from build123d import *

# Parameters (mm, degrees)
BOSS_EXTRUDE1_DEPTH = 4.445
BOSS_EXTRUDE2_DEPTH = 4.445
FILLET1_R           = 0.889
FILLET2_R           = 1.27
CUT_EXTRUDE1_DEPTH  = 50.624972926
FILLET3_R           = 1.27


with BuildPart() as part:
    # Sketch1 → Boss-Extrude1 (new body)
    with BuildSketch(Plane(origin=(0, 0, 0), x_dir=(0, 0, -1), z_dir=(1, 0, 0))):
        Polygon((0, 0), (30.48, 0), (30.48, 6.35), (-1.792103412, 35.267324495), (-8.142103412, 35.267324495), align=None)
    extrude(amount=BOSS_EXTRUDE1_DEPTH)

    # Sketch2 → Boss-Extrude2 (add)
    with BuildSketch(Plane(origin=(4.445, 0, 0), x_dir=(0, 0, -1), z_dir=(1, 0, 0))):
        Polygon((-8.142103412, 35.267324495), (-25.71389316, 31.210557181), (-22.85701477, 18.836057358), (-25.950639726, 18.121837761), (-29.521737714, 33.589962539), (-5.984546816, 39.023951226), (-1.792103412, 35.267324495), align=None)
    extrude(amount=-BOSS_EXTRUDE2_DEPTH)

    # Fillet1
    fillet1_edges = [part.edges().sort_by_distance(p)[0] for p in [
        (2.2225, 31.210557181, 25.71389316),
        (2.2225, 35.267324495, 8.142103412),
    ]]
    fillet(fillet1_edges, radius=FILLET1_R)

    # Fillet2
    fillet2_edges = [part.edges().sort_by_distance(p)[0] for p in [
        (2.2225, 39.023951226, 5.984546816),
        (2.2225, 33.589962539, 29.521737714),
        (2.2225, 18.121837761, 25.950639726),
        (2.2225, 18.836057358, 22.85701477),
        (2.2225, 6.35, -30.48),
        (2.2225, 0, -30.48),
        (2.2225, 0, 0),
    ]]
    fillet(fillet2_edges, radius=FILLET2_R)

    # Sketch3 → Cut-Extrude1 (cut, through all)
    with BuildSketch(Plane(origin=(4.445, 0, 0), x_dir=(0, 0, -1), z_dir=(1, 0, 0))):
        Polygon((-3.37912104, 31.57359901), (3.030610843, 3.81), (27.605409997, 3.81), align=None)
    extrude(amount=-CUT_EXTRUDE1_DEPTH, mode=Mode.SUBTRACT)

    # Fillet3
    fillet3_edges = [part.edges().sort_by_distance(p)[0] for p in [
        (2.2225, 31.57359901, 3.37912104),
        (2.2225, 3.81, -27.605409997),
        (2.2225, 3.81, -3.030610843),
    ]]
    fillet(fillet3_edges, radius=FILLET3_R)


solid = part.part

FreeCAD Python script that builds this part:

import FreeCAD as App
import Part
import Sketcher
Q = App.Units.Quantity


def edges_at(feature, points):
    """Names of the edges that pass closest to the given points."""
    edges = feature.Shape.Edges
    near = lambda p: min(range(len(edges)), key=lambda i: edges[i].distToShape(Part.Vertex(*p))[0])
    return sorted({f"Edge{near(p) + 1}" for p in points})

doc = App.newDocument("Part")
body = doc.addObject("PartDesign::Body", "Body")

sketch1 = body.newObject("Sketcher::SketchObject", "Sketch")
sketch1.AttachmentSupport = (doc.getObject("YZ_Plane"), [""])
sketch1.MapMode = "FlatFace"
sketch1.addGeometry([
    Part.LineSegment(App.Vector(0, 0, 0), App.Vector(0, -30, 0)),
    Part.LineSegment(App.Vector(0, -30, 0), App.Vector(6, -30, 0)),
    Part.LineSegment(App.Vector(6, -30, 0), App.Vector(35, 2, 0)),
    Part.LineSegment(App.Vector(35, 2, 0), App.Vector(35, 8, 0)),
    Part.LineSegment(App.Vector(35, 8, 0), App.Vector(0, 0, 0)),
], False)
sketch1.addConstraint([
    Sketcher.Constraint("Coincident", 0, 2, 1, 1),
    Sketcher.Constraint("Coincident", 1, 2, 2, 1),
    Sketcher.Constraint("Coincident", 2, 2, 3, 1),
    Sketcher.Constraint("Coincident", 3, 2, 4, 1),
    Sketcher.Constraint("Coincident", 4, 2, 0, 1),
    Sketcher.Constraint("Vertical", 0),
    Sketcher.Constraint("Horizontal", 1),
    Sketcher.Constraint("Vertical", 3),
    Sketcher.Constraint("Coincident", 4, 2, -1, 1),
    Sketcher.Constraint("Equal", 1, 3),
    Sketcher.Constraint("DistanceY", 0, 2, 0, 1, Q("1.2 in")),
    Sketcher.Constraint("Angle", 4, Q("-167 deg")),
    Sketcher.Constraint("DistanceX", 1, 1, 1, 2, Q("0.25 in")),
    Sketcher.Constraint("Distance", 4, Q("1.425 in")),
])
pad1 = body.newObject("PartDesign::Pad", "Pad")
pad1.Profile = sketch1
pad1.Length = Q("0.175 in")

sketch2 = body.newObject("Sketcher::SketchObject", "Sketch001")
sketch2.AttachmentSupport = (doc.getObject("YZ_Plane"), [""])
sketch2.MapMode = "FlatFace"
sketch2.AttachmentOffset = App.Placement(App.Vector(0, 0, 0.175 * 25.4), App.Rotation())
sketch2.addGeometry([
    Part.LineSegment(App.Vector(31.2, 25.7, 0), App.Vector(35.3, 8.1, 0)),
    Part.LineSegment(App.Vector(35.3, 8.1, 0), App.Vector(35.3, 1.8, 0)),
    Part.LineSegment(App.Vector(35.3, 1.8, 0), App.Vector(39, 6, 0)),
    Part.LineSegment(App.Vector(39, 6, 0), App.Vector(33.6, 29.5, 0)),
    Part.LineSegment(App.Vector(33.6, 29.5, 0), App.Vector(18.1, 26, 0)),
    Part.LineSegment(App.Vector(18.1, 26, 0), App.Vector(18.8, 22.9, 0)),
    Part.LineSegment(App.Vector(18.8, 22.9, 0), App.Vector(31.2, 25.7, 0)),
], False)
sketch2.addConstraint([
    Sketcher.Constraint("Coincident", 0, 2, 1, 1),
    Sketcher.Constraint("Coincident", 1, 2, 2, 1),
    Sketcher.Constraint("Coincident", 2, 2, 3, 1),
    Sketcher.Constraint("Coincident", 3, 2, 4, 1),
    Sketcher.Constraint("Coincident", 4, 2, 5, 1),
    Sketcher.Constraint("Coincident", 5, 2, 6, 1),
    Sketcher.Constraint("Coincident", 6, 2, 0, 1),
    Sketcher.Constraint("Vertical", 1),
    Sketcher.Constraint("Parallel", 0, 3),
    Sketcher.Constraint("Perpendicular", 3, 4),
    Sketcher.Constraint("Perpendicular", 4, 5),
    Sketcher.Constraint("Perpendicular", 5, 6),
    Sketcher.Constraint("Angle", 0, Q("-77 deg")),
    Sketcher.Constraint("Distance", 6, Q("0.5 in")),
    Sketcher.Constraint("DistanceY", 1, 2, 1, 1, Q("0.25 in")),
    Sketcher.Constraint("Distance", 0, Q("0.71 in")),
    Sketcher.Constraint("Distance", 4, Q("0.625 in")),
    Sketcher.Constraint("Distance", 5, Q("0.125 in")),
    Sketcher.Constraint("DistanceX", -1, 1, 2, 2, 39.023951),
    Sketcher.Constraint("DistanceY", -1, 1, 4, 2, 25.95064),
    Sketcher.Constraint("DistanceX", 3, 2, 2, 2, 5.433989),
])
pad2 = body.newObject("PartDesign::Pad", "Pad001")
pad2.Profile = sketch2
pad2.Length = Q("0.175 in")
pad2.Reversed = True
doc.recompute()

fillet = body.newObject("PartDesign::Fillet", "Fillet")
fillet.Base = (pad2, edges_at(pad2, [(2.223, 31.211, 25.714), (2.223, 35.267, 8.142)]))
fillet.Radius = Q("0.035 in")
doc.recompute()

fillet2 = body.newObject("PartDesign::Fillet", "Fillet001")
fillet2.Base = (fillet, edges_at(fillet, [
    (2.223, 39.024, 5.985),
    (2.223, 33.59, 29.522),
    (2.223, 18.122, 25.951),
    (2.223, 18.836, 22.857),
    (2.223, 6.35, -30.48),
    (2.223, 0, -30.48),
    (2.223, 0, 0),
]))
fillet2.Radius = Q("0.05 in")

sketch3 = body.newObject("Sketcher::SketchObject", "Sketch002")
sketch3.AttachmentSupport = (doc.getObject("YZ_Plane"), [""])
sketch3.MapMode = "FlatFace"
sketch3.AttachmentOffset = App.Placement(App.Vector(0, 0, 0.175 * 25.4), App.Rotation())
sketch3.addGeometry([
    Part.LineSegment(App.Vector(32, 3, 0), App.Vector(4, -3, 0)),
    Part.LineSegment(App.Vector(4, -3, 0), App.Vector(4, -28, 0)),
    Part.LineSegment(App.Vector(4, -28, 0), App.Vector(32, 3, 0)),
], False)
sketch3.addConstraint([
    Sketcher.Constraint("Coincident", 0, 2, 1, 1),
    Sketcher.Constraint("Coincident", 1, 2, 2, 1),
    Sketcher.Constraint("Coincident", 2, 2, 0, 1),
    Sketcher.Constraint("Vertical", 1),
    Sketcher.Constraint("Angle", 0, Q("-167 deg")),
    Sketcher.Constraint("DistanceX", -1, 1, 0, 2, Q("0.15 in")),
    Sketcher.Constraint("DistanceY", 1, 2, 1, 1, 24.574799),
    Sketcher.Constraint("DistanceX", -1, 1, 2, 2, 31.573599),
    Sketcher.Constraint("DistanceY", 0, 2, -1, 1, 3.030611),
])
pocket1 = body.newObject("PartDesign::Pocket", "Pocket")
pocket1.Profile = sketch3
pocket1.Type = "ThroughAll"
doc.recompute()

fillet3 = body.newObject("PartDesign::Fillet", "Fillet002")
fillet3.Base = (pocket1, edges_at(pocket1, [(2.223, 31.574, 3.379), (2.223, 3.81, -27.605), (2.223, 3.81, -3.031)]))
fillet3.Radius = Q("0.05 in")

doc.recompute()
